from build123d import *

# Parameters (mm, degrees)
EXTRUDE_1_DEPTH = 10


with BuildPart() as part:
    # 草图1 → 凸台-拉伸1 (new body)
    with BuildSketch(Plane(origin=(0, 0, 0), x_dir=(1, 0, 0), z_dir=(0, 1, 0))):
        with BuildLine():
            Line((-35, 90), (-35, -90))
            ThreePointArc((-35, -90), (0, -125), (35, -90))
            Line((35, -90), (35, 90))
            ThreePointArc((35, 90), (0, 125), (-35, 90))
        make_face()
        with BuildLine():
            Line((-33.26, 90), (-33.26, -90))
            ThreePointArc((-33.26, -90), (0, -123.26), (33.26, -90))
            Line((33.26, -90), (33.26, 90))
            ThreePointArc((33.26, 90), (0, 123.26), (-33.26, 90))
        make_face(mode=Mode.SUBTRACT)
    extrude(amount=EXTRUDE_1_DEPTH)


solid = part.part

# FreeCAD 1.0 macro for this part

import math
import FreeCAD as App
import Part
import Sketcher
from FreeCAD import Vector
Q = App.Units.Quantity

doc = App.newDocument("Part")
body = doc.addObject("PartDesign::Body", "Body")

# Sketch on XZ plane
sketch1 = body.newObject("Sketcher::SketchObject", "Sketch")
sketch1.AttachmentSupport = (doc.getObject("XZ_Plane"), [""])
sketch1.MapMode = "FlatFace"
sketch1.addGeometry([
    Part.LineSegment(Vector(-35, -90, 0), Vector(-35, 90, 0)),  # 0
    Part.ArcOfCircle(Part.Circle(Vector(0, 90, 0), Vector(0, 0, 1), 35), math.radians(0), math.radians(180)),  # 1
    Part.LineSegment(Vector(35, 90, 0), Vector(35, -90, 0)),  # 2
    Part.ArcOfCircle(Part.Circle(Vector(0, -90, 0), Vector(0, 0, 1), 35), math.radians(180), math.radians(360)),  # 3
    Part.LineSegment(Vector(-33, 90, 0), Vector(-33, -90, 0)),  # 4
    Part.ArcOfCircle(Part.Circle(Vector(0, -90, 0), Vector(0, 0, 1), 33), math.radians(180), math.radians(360)),  # 5
    Part.LineSegment(Vector(33, -90, 0), Vector(33, 90, 0)),  # 6
    Part.ArcOfCircle(Part.Circle(Vector(0, 90, 0), Vector(0, 0, 1), 33), math.radians(0), math.radians(180)),  # 7
], False)
sketch1.addConstraint([
    Sketcher.Constraint("Tangent", 0, 2, 1, 2),
    Sketcher.Constraint("Tangent", 1, 1, 2, 1),
    Sketcher.Constraint("Tangent", 2, 2, 3, 2),
    Sketcher.Constraint("Tangent", 3, 1, 0, 1),
    Sketcher.Constraint("Tangent", 4, 2, 5, 1),
    Sketcher.Constraint("Tangent", 5, 2, 6, 1),
    Sketcher.Constraint("Tangent", 6, 2, 7, 1),
    Sketcher.Constraint("Tangent", 7, 2, 4, 1),
    Sketcher.Constraint("Vertical", 0),
    Sketcher.Constraint("Vertical", 2),
    Sketcher.Constraint("Vertical", 4),
    Sketcher.Constraint("Vertical", 6),
    Sketcher.Constraint("Coincident", 5, 3, 3, 3),
    Sketcher.Constraint("Symmetric", 1, 3, 3, 3, -1, 1),
    Sketcher.Constraint("Horizontal", 7, 3, 0, 2),
    Sketcher.Constraint("Radius", 1, Q("35 mm")),
    Sketcher.Constraint("DistanceY", 0, 1, 0, 2, Q("180 mm")),
    Sketcher.Constraint("Radius", 5, Q("33.26 mm")),
])
pad1 = body.newObject("PartDesign::Pad", "Pad")
pad1.Profile = sketch1
pad1.Length = 10
pad1.Reversed = True

doc.recompute()
